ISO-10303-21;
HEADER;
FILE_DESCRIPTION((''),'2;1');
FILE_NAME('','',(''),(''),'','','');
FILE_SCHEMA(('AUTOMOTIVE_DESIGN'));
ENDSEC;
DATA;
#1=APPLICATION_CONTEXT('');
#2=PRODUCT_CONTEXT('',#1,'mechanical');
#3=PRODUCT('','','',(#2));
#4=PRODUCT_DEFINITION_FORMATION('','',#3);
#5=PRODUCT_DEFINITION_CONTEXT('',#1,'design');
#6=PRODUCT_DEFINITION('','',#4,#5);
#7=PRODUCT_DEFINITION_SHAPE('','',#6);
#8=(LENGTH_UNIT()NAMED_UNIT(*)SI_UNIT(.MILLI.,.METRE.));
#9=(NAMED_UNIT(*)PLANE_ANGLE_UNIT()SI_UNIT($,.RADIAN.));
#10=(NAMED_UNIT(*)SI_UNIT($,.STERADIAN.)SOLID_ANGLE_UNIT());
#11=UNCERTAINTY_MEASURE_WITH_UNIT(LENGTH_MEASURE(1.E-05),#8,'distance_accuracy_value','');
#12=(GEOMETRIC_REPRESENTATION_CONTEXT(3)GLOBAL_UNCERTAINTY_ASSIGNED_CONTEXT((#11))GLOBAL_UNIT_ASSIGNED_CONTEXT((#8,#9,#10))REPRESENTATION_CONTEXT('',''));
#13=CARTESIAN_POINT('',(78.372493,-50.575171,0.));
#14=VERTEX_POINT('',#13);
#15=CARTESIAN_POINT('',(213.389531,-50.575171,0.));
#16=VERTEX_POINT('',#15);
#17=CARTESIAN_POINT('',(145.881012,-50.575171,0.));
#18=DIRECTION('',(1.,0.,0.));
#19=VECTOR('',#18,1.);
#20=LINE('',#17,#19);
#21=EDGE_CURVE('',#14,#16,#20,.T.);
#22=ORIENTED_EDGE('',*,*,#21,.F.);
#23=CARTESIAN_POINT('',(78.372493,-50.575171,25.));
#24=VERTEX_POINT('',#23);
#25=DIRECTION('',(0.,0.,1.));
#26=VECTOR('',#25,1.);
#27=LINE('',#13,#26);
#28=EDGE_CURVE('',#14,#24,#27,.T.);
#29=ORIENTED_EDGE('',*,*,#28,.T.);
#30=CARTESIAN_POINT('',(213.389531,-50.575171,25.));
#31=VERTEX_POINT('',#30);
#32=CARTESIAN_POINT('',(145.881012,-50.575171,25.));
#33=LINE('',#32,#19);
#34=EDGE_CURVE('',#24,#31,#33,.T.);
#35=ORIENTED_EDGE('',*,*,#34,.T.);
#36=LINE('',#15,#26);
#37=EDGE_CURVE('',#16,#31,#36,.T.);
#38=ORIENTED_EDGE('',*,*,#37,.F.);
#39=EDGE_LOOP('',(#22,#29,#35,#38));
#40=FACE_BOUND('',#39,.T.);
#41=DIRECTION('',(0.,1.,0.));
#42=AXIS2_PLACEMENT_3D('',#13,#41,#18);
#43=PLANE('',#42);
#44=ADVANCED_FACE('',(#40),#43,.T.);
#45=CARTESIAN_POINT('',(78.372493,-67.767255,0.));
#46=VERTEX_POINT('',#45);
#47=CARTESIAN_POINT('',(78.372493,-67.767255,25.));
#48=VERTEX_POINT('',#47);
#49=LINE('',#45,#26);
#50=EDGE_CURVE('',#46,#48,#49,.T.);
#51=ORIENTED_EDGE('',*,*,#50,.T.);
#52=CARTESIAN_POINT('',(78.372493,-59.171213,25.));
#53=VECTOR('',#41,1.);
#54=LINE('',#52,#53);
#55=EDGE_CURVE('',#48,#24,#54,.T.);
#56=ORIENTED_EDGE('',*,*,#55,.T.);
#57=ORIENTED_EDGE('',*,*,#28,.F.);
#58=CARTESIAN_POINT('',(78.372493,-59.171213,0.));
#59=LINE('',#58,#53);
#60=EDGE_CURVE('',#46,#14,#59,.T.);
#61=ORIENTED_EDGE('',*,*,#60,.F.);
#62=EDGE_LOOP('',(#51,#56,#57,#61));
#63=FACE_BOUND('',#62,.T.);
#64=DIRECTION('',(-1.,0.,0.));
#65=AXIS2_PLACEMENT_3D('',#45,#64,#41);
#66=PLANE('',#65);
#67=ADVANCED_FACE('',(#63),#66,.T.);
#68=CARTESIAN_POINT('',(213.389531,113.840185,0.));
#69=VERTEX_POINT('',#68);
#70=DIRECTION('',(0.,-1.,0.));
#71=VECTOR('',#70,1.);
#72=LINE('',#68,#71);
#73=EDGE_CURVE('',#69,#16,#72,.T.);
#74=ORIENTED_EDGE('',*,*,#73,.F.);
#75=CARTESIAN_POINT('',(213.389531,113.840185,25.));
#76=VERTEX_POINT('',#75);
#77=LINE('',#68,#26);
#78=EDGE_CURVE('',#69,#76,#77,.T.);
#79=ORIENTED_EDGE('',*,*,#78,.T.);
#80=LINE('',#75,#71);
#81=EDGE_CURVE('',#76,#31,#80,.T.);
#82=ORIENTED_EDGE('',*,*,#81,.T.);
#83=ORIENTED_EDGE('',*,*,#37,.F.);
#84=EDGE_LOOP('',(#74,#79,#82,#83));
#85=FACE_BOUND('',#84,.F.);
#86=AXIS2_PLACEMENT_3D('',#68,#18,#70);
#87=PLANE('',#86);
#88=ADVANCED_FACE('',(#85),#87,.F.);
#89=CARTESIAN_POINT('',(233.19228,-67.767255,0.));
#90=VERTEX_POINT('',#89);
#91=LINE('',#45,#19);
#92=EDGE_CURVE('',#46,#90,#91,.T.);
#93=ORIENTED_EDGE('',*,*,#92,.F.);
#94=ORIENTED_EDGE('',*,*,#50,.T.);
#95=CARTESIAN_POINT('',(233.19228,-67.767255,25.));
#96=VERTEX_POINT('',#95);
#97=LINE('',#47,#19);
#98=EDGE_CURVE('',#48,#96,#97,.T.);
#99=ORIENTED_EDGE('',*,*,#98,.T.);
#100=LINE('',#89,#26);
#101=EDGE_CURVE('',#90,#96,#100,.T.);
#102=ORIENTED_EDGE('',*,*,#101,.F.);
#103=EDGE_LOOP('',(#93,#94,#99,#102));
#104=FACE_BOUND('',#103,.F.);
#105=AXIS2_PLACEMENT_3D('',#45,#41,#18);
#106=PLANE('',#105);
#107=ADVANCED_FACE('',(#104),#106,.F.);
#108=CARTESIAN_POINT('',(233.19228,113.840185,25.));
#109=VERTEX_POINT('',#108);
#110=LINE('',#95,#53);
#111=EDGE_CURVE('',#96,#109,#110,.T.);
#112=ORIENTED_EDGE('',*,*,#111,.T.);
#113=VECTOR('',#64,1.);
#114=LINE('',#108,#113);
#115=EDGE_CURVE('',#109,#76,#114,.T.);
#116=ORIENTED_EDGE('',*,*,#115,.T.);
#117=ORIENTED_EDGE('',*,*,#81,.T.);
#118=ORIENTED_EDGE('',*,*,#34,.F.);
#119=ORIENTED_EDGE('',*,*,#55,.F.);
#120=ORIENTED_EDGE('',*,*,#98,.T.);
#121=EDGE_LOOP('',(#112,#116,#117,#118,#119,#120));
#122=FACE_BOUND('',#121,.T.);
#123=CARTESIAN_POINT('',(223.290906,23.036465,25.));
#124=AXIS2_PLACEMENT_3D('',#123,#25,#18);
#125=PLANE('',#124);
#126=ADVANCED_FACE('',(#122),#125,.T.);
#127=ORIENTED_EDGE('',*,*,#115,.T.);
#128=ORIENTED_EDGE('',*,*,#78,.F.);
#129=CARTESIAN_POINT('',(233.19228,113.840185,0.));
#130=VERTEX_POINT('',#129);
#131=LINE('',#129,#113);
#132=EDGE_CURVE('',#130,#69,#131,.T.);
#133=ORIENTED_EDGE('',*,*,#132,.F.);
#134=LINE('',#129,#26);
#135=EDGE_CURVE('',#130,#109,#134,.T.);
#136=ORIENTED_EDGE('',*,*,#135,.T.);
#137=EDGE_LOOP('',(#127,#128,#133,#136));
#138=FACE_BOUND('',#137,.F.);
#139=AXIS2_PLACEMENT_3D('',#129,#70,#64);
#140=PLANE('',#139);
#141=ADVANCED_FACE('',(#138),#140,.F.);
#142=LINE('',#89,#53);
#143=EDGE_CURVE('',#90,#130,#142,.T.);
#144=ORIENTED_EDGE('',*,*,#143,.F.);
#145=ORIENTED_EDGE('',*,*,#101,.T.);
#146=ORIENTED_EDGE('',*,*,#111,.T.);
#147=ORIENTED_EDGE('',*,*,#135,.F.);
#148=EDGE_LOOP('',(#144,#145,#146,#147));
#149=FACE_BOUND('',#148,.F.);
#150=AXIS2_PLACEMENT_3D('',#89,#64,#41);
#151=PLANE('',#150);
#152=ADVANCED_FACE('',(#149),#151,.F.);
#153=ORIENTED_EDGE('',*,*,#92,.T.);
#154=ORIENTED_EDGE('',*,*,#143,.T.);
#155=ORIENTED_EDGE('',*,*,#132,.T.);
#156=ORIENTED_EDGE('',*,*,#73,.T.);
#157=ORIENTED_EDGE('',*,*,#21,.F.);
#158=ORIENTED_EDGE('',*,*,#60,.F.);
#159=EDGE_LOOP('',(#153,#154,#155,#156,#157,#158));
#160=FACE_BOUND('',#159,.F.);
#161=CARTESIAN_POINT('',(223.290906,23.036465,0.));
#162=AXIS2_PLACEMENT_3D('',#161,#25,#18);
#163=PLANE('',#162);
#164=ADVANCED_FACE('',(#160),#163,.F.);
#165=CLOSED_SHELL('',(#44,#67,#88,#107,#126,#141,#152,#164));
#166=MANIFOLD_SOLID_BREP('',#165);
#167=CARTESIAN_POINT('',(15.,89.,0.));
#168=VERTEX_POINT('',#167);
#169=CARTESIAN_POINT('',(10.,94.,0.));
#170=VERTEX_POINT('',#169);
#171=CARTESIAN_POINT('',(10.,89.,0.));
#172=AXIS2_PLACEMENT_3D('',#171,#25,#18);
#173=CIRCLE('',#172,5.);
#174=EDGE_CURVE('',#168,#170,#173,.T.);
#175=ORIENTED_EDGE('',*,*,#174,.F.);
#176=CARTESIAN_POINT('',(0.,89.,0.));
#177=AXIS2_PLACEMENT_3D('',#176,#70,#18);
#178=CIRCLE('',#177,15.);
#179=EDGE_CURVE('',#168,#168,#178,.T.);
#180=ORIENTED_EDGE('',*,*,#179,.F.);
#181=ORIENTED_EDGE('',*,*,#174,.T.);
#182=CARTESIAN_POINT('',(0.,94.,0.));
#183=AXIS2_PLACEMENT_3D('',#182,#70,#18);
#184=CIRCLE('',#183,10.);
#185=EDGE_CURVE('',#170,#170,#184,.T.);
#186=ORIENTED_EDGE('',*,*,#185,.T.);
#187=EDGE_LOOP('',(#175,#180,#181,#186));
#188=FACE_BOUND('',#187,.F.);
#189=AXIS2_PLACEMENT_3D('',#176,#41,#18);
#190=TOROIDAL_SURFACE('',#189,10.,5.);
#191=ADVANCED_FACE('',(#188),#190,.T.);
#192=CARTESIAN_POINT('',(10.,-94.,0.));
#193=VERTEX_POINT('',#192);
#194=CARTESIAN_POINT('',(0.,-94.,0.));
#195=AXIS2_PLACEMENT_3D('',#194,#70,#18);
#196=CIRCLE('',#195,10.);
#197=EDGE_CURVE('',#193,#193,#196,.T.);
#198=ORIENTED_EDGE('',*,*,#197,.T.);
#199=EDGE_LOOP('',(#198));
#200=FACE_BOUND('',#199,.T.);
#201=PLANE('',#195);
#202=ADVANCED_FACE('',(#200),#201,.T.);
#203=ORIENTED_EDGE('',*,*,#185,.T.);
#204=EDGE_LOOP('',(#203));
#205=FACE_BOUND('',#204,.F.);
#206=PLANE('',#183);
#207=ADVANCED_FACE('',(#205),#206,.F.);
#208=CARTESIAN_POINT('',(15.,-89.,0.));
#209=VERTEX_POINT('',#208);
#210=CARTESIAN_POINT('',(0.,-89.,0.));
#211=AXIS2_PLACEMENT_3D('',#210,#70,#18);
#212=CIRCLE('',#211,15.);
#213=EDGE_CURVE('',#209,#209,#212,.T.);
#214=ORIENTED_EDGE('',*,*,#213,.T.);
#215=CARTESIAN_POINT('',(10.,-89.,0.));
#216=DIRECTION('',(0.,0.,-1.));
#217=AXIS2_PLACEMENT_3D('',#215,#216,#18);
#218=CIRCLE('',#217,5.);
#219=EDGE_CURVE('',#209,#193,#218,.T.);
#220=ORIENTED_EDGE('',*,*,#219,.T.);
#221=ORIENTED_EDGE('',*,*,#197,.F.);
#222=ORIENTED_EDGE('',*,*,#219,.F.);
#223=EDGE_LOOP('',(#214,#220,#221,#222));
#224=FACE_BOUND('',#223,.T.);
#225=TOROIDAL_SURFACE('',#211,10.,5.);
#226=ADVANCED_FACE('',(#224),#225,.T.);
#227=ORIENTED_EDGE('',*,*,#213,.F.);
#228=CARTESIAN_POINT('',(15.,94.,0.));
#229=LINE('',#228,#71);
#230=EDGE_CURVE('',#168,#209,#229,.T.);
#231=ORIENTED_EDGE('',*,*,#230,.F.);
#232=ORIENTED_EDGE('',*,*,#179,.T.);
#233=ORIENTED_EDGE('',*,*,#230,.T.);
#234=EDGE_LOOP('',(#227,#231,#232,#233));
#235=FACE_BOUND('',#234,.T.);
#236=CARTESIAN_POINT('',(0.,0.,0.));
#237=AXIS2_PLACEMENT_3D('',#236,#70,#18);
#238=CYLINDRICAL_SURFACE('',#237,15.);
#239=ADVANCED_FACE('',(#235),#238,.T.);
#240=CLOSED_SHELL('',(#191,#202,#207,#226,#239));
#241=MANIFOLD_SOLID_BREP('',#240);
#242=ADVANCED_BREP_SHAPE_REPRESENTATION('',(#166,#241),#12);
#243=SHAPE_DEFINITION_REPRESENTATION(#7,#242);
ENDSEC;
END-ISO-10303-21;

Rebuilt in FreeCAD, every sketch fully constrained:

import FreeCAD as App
import Part
import Sketcher

V = App.Vector
Q = App.Units.Quantity


def edges_at(feature, points):
    """Names of the edges that pass closest to the given points."""
    edges = feature.Shape.Edges
    near = lambda p: min(range(len(edges)), key=lambda i: edges[i].distToShape(Part.Vertex(*p))[0])
    return sorted({f"Edge{near(p) + 1}" for p in points})

doc = App.newDocument("Part")
body = doc.addObject("PartDesign::Body", "Body")

# Sketch on XZ plane
sketch1 = doc.addObject("Sketcher::SketchObject", "Sketch")
body.addObject(sketch1)
sketch1.AttachmentSupport = (doc.XZ_Plane, [""])
sketch1.MapMode = "FlatFace"
sketch1.addGeometry(Part.Circle(V(0, 0, 0), V(0, 0, 1), 15), False)
sketch1.addConstraint([
    Sketcher.Constraint("Coincident", 0, 3, -1, 1),
    Sketcher.Constraint("Diameter", 0, Q("30 mm")),
])
pad1 = doc.addObject("PartDesign::Pad", "Pad")
body.addObject(pad1)
pad1.Profile = sketch1
pad1.Length = 188
pad1.Midplane = True
doc.recompute()

fillet = doc.addObject("PartDesign::Fillet", "Fillet")
body.addObject(fillet)
fillet.Base = (pad1, edges_at(pad1, [(-15, -94, 0), (-15, 94, 0)]))
fillet.Radius = 5
body2 = doc.addObject("PartDesign::Body", "Body001")

# Sketch on XY plane
sketch2 = doc.addObject("Sketcher::SketchObject", "Sketch001")
body2.addObject(sketch2)
sketch2.AttachmentSupport = (doc.getObject("XY_Plane001"), [""])
sketch2.MapMode = "FlatFace"
sketch2.addGeometry([
    Part.LineSegment(V(233, 114, 0), V(213, 114, 0)),  # 0
    Part.LineSegment(V(213, 114, 0), V(213, -51, 0)),  # 1
    Part.LineSegment(V(213, -51, 0), V(78, -51, 0)),  # 2
    Part.LineSegment(V(78, -51, 0), V(78, -68, 0)),  # 3
    Part.LineSegment(V(78, -68, 0), V(233, -68, 0)),  # 4
    Part.LineSegment(V(233, -68, 0), V(233, 114, 0)),  # 5
], False)
sketch2.addConstraint([
    Sketcher.Constraint("Coincident", 0, 2, 1, 1),
    Sketcher.Constraint("Coincident", 1, 2, 2, 1),
    Sketcher.Constraint("Coincident", 2, 2, 3, 1),
    Sketcher.Constraint("Coincident", 3, 2, 4, 1),
    Sketcher.Constraint("Coincident", 4, 2, 5, 1),
    Sketcher.Constraint("Coincident", 5, 2, 0, 1),
    Sketcher.Constraint("Horizontal", 0),
    Sketcher.Constraint("Vertical", 1),
    Sketcher.Constraint("Horizontal", 2),
    Sketcher.Constraint("Vertical", 3),
    Sketcher.Constraint("Horizontal", 4),
    Sketcher.Constraint("Vertical", 5),
    Sketcher.Constraint("DistanceX", 0, 2, 0, 1, Q("19.802749 mm")),
    Sketcher.Constraint("DistanceX", 2, 2, 2, 1, Q("135.017038 mm")),
    Sketcher.Constraint("DistanceY", 5, 1, 5, 2, Q("181.60744 mm")),
    Sketcher.Constraint("DistanceY", 1, 2, 1, 1, Q("164.415356 mm")),
    Sketcher.Constraint("DistanceX", -1, 1, 0, 2, Q("213.389531 mm")),
    Sketcher.Constraint("DistanceY", 1, 2, -1, 1, Q("50.575171 mm")),
])
pad2 = doc.addObject("PartDesign::Pad", "Pad001")
body2.addObject(pad2)
pad2.Profile = sketch2
pad2.Length = 25

doc.recompute()
